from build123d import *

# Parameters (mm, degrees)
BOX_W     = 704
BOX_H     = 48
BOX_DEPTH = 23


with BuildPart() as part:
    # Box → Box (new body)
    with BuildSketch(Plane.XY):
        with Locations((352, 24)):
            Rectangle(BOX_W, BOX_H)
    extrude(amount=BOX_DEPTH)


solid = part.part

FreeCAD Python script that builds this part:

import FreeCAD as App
import Part
import Sketcher

doc = App.newDocument("Part")
body = doc.addObject("PartDesign::Body", "Body")

sketch1 = doc.addObject("Sketcher::SketchObject", "Sketch")
body.addObject(sketch1)
sketch1.AttachmentSupport = (doc.XY_Plane, [""])
sketch1.MapMode = "FlatFace"
sketch1.addGeometry([
    Part.LineSegment(App.Vector(0, 48, 0), App.Vector(0, 0, 0)),
    Part.LineSegment(App.Vector(0, 0, 0), App.Vector(704, 0, 0)),
    Part.LineSegment(App.Vector(704, 0, 0), App.Vector(704, 48, 0)),
    Part.LineSegment(App.Vector(704, 48, 0), App.Vector(0, 48, 0)),
], False)
sketch1.addConstraint([
    Sketcher.Constraint("Coincident", 0, 2, 1, 1),
    Sketcher.Constraint("Coincident", 1, 2, 2, 1),
    Sketcher.Constraint("Coincident", 2, 2, 3, 1),
    Sketcher.Constraint("Coincident", 3, 2, 0, 1),
    Sketcher.Constraint("Vertical", 0),
    Sketcher.Constraint("Horizontal", 1),
    Sketcher.Constraint("Vertical", 2),
    Sketcher.Constraint("Horizontal", 3),
    Sketcher.Constraint("Coincident", 0, 2, -1, 1),
    Sketcher.Constraint("DistanceX", 1, 1, 1, 2, 704.0),
    Sketcher.Constraint("DistanceY", 0, 2, 0, 1, 48.0),
])
pad1 = doc.addObject("PartDesign::Pad", "Pad")
body.addObject(pad1)
pad1.Profile = sketch1
pad1.Length = 23

doc.recompute()
